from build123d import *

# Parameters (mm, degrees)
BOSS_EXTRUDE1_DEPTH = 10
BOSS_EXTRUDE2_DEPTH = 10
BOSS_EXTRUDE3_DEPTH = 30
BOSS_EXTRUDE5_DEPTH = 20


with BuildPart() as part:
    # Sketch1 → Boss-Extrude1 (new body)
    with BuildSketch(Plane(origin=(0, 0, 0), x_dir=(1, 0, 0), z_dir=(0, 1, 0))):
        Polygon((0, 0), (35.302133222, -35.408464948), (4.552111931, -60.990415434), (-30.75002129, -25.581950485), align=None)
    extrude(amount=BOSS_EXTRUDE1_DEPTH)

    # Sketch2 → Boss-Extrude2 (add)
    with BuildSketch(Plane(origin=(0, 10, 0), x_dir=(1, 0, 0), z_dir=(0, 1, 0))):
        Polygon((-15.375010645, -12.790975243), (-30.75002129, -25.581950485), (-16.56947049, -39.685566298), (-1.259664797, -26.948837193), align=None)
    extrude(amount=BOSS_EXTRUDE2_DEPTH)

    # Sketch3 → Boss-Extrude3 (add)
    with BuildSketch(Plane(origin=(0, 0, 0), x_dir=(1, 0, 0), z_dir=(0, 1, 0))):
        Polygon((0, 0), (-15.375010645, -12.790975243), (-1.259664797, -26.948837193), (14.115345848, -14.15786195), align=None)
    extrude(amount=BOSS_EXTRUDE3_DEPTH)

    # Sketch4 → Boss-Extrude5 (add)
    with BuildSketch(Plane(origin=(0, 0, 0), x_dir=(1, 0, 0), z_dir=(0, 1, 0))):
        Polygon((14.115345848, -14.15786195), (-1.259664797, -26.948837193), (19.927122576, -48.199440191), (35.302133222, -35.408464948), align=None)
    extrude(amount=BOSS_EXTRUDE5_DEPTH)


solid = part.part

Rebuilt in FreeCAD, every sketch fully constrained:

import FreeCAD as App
import Part
import Sketcher
from FreeCAD import Vector
Q = App.Units.Quantity

doc = App.newDocument("Part")
body = doc.addObject("PartDesign::Body", "Body")

sketch1 = body.newObject("Sketcher::SketchObject", "Sketch")
sketch1.AttachmentSupport = (doc.getObject("XZ_Plane"), [""])
sketch1.MapMode = "FlatFace"
sketch1.addGeometry([
    Part.LineSegment(Vector(35, 35, 0), Vector(0, 0, 0)),
    Part.LineSegment(Vector(0, 0, 0), Vector(-31, 26, 0)),
    Part.LineSegment(Vector(-31, 26, 0), Vector(5, 61, 0)),
    Part.LineSegment(Vector(5, 61, 0), Vector(35, 35, 0)),
], False)
sketch1.addConstraint([
    Sketcher.Constraint("Coincident", 0, 2, 1, 1),
    Sketcher.Constraint("Coincident", 1, 2, 2, 1),
    Sketcher.Constraint("Coincident", 2, 2, 3, 1),
    Sketcher.Constraint("Coincident", 3, 2, 0, 1),
    Sketcher.Constraint("Coincident", 0, 2, -1, 1),
    Sketcher.Constraint("Parallel", 0, 2),
    Sketcher.Constraint("Parallel", 1, 3),
    Sketcher.Constraint("Distance", 0, Q("50 mm")),
    Sketcher.Constraint("Distance", 1, Q("40 mm")),
    Sketcher.Constraint("DistanceX", 1, 2, -1, 1, Q("30.750021 mm")),
    Sketcher.Constraint("DistanceX", -1, 1, 2, 2, Q("4.552112 mm")),
])
pad1 = body.newObject("PartDesign::Pad", "Pad")
pad1.Profile = sketch1
pad1.Length = 10
pad1.Reversed = True

sketch2 = body.newObject("Sketcher::SketchObject", "Sketch001")
sketch2.AttachmentSupport = (doc.getObject("XZ_Plane"), [""])
sketch2.MapMode = "FlatFace"
sketch2.AttachmentOffset = App.Placement(Vector(0, 0, -10), App.Rotation())
sketch2.addGeometry([
    Part.LineSegment(Vector(-15.375011, 12.790975, 0), Vector(-30.750021, 25.58195, 0)),
    Part.LineSegment(Vector(-30.750021, 25.58195, 0), Vector(-16.56947, 39.685566, 0)),
    Part.LineSegment(Vector(-16.56947, 39.685566, 0), Vector(-1.259665, 26.948837, 0)),
    Part.LineSegment(Vector(-1.259665, 26.948837, 0), Vector(-15.375011, 12.790975, 0)),
], False)
sketch2.addConstraint([
    Sketcher.Constraint("Coincident", 0, 2, 1, 1),
    Sketcher.Constraint("Coincident", 1, 2, 2, 1),
    Sketcher.Constraint("Coincident", 2, 2, 3, 1),
    Sketcher.Constraint("Coincident", 3, 2, 0, 1),
    Sketcher.Constraint("Distance", 0, Q("20 mm")),
    Sketcher.Constraint("Distance", 1, Q("20 mm")),
    Sketcher.Constraint("Distance", 3, Q("19.9922 mm")),
    Sketcher.Constraint("Distance", 2, Q("19.915181 mm")),
    Sketcher.Constraint("DistanceX", 0, 2, -1, 1, Q("30.750021 mm")),
    Sketcher.Constraint("DistanceY", -1, 1, 0, 2, Q("25.58195 mm")),
    Sketcher.Constraint("DistanceX", 1, 2, -1, 1, Q("16.56947 mm")),
    Sketcher.Constraint("DistanceX", 3, 2, -1, 1, Q("15.375011 mm")),
])
pad2 = body.newObject("PartDesign::Pad", "Pad001")
pad2.Profile = sketch2
pad2.Length = 10
pad2.Reversed = True

sketch3 = body.newObject("Sketcher::SketchObject", "Sketch002")
sketch3.AttachmentSupport = (doc.getObject("XZ_Plane"), [""])
sketch3.MapMode = "FlatFace"
sketch3.addGeometry([
    Part.LineSegment(Vector(0, 0, 0), Vector(-15, 13, 0)),
    Part.LineSegment(Vector(-15, 13, 0), Vector(-1, 27, 0)),
    Part.LineSegment(Vector(-1, 27, 0), Vector(14, 14, 0)),
    Part.LineSegment(Vector(14, 14, 0), Vector(0, 0, 0)),
], False)
sketch3.addConstraint([
    Sketcher.Constraint("Coincident", 0, 2, 1, 1),
    Sketcher.Constraint("Coincident", 1, 2, 2, 1),
    Sketcher.Constraint("Coincident", 2, 2, 3, 1),
    Sketcher.Constraint("Coincident", 3, 2, 0, 1),
    Sketcher.Constraint("Coincident", 3, 2, -1, 1),
    Sketcher.Constraint("Parallel", 0, 2),
    Sketcher.Constraint("Parallel", 1, 3),
    Sketcher.Constraint("Distance", 0, Q("20 mm")),
    Sketcher.Constraint("Distance", 1, Q("19.9922 mm")),
    Sketcher.Constraint("DistanceX", 0, 2, -1, 1, Q("15.375011 mm")),
    Sketcher.Constraint("DistanceY", -1, 1, 2, 2, Q("14.157862 mm")),
])
pad3 = body.newObject("PartDesign::Pad", "Pad002")
pad3.Profile = sketch3
pad3.Length = 30
pad3.Reversed = True

sketch4 = body.newObject("Sketcher::SketchObject", "Sketch003")
sketch4.AttachmentSupport = (doc.getObject("XZ_Plane"), [""])
sketch4.MapMode = "FlatFace"
sketch4.addGeometry([
    Part.LineSegment(Vector(14, 14, 0), Vector(-1, 27, 0)),
    Part.LineSegment(Vector(-1, 27, 0), Vector(20, 48, 0)),
    Part.LineSegment(Vector(20, 48, 0), Vector(35, 35, 0)),
    Part.LineSegment(Vector(35, 35, 0), Vector(14, 14, 0)),
], False)
sketch4.addConstraint([
    Sketcher.Constraint("Coincident", 0, 2, 1, 1),
    Sketcher.Constraint("Coincident", 1, 2, 2, 1),
    Sketcher.Constraint("Coincident", 2, 2, 3, 1),
    Sketcher.Constraint("Coincident", 3, 2, 0, 1),
    Sketcher.Constraint("Parallel", 0, 2),
    Sketcher.Constraint("Parallel", 1, 3),
    Sketcher.Constraint("Distance", 0, Q("20 mm")),
    Sketcher.Constraint("Distance", 1, Q("30.0078 mm")),
    Sketcher.Constraint("DistanceX", 0, 2, 2, 2, Q("36.561798 mm")),
    Sketcher.Constraint("DistanceY", -1, 1, 1, 2, Q("48.19944 mm")),
    Sketcher.Constraint("DistanceY", -1, 1, 3, 2, Q("14.157862 mm")),
    Sketcher.Constraint("DistanceX", 0, 2, -1, 1, Q("1.259665 mm")),
])
pad4 = body.newObject("PartDesign::Pad", "Pad003")
pad4.Profile = sketch4
pad4.Length = 20
pad4.Reversed = True

doc.recompute()
